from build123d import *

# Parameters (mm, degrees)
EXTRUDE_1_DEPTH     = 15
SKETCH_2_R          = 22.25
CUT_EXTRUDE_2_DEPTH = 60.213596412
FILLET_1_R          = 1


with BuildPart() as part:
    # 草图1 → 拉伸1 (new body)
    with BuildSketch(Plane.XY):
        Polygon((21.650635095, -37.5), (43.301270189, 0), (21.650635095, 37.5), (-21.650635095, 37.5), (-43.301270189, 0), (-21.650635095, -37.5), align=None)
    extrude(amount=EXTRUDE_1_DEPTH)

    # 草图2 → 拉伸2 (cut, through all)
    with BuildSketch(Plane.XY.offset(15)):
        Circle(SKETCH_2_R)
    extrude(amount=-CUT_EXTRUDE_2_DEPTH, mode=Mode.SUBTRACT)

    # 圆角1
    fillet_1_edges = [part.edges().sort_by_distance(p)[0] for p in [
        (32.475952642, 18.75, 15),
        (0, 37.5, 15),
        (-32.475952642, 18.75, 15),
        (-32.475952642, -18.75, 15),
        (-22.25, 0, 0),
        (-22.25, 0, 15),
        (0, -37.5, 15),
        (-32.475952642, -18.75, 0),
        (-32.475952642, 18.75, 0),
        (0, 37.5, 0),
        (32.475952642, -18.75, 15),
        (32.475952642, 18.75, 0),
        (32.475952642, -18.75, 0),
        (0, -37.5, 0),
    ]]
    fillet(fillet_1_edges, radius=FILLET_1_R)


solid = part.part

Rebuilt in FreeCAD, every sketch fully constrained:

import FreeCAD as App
import Part
import Sketcher
from FreeCAD import Vector
Q = App.Units.Quantity


def edges_at(feature, points):
    """Names of the edges that pass closest to the given points."""
    edges = feature.Shape.Edges
    near = lambda p: min(range(len(edges)), key=lambda i: edges[i].distToShape(Part.Vertex(*p))[0])
    return sorted({f"Edge{near(p) + 1}" for p in points})


def add_polygon(sketch, points):
    """Adds a closed chain of lines whose ends are joined by coincident constraints."""
    first, n = sketch.GeometryCount, len(points)
    for a, b in zip(points, points[1:] + points[:1]):
        sketch.addGeometry(Part.LineSegment(App.Vector(*a, 0), App.Vector(*b, 0)), False)
    for i in range(n):
        sketch.addConstraint(Sketcher.Constraint("Coincident", first + i, 2, first + (i + 1) % n, 1))

doc = App.newDocument("Part")
body = doc.addObject("PartDesign::Body", "Body")

# Sketch on XY plane
sketch1 = body.newObject("Sketcher::SketchObject", "Sketch")
sketch1.AttachmentSupport = (doc.getObject("XY_Plane"), [""])
sketch1.MapMode = "FlatFace"
add_polygon(sketch1, [(21.650635, -37.5), (43.30127, 0), (21.650635, 37.5), (-21.650635, 37.5), (-43.30127, 0), (-21.650635, -37.5)])  # lines 0-5
sketch1.addConstraint([
    Sketcher.Constraint("Horizontal", 2),
    Sketcher.Constraint("Horizontal", 5),
    Sketcher.Constraint("Symmetric", 0, 2, 3, 2, -1, 1),
    Sketcher.Constraint("Symmetric", 1, 2, 4, 2, -1, 1),
    Sketcher.Constraint("PointOnObject", 0, 2, -1),
    Sketcher.Constraint("Parallel", 0, 3),
    Sketcher.Constraint("Vertical", 2, 2, 4, 2),
    Sketcher.Constraint("Angle", 0, Q("60 deg")),
    Sketcher.Constraint("DistanceY", 4, 2, 2, 2, Q("75 mm")),
    Sketcher.Constraint("DistanceX", 2, 2, 2, 1, Q("43.30127 mm")),
])
pad1 = body.newObject("PartDesign::Pad", "Pad")
pad1.Profile = sketch1
pad1.Length = 15

# Sketch on XY plane
sketch2 = body.newObject("Sketcher::SketchObject", "Sketch001")
sketch2.AttachmentSupport = (doc.getObject("XY_Plane"), [""])
sketch2.MapMode = "FlatFace"
sketch2.AttachmentOffset = App.Placement(Vector(0, 0, 15), App.Rotation())
sketch2.addGeometry(Part.Circle(Vector(0, 0, 0), Vector(0, 0, 1), 22.25), False)
sketch2.addConstraint([
    Sketcher.Constraint("Coincident", 0, 3, -1, 1),
    Sketcher.Constraint("Diameter", 0, Q("44.5 mm")),
])
pocket1 = body.newObject("PartDesign::Pocket", "Pocket")
pocket1.Profile = sketch2
pocket1.Type = "ThroughAll"
doc.recompute()

fillet = body.newObject("PartDesign::Fillet", "Fillet")
fillet.Base = (pocket1, edges_at(pocket1, [
    (32.476, 18.75, 15),
    (0, 37.5, 15),
    (-32.476, 18.75, 15),
    (-32.476, -18.75, 15),
    (-22.25, 0, 0),
    (-22.25, 0, 15),
    (0, -37.5, 15),
    (-32.476, -18.75, 0),
    (-32.476, 18.75, 0),
    (0, 37.5, 0),
    (32.476, -18.75, 15),
    (32.476, 18.75, 0),
    (32.476, -18.75, 0),
    (0, -37.5, 0),
]))
fillet.Radius = 1

doc.recompute()
